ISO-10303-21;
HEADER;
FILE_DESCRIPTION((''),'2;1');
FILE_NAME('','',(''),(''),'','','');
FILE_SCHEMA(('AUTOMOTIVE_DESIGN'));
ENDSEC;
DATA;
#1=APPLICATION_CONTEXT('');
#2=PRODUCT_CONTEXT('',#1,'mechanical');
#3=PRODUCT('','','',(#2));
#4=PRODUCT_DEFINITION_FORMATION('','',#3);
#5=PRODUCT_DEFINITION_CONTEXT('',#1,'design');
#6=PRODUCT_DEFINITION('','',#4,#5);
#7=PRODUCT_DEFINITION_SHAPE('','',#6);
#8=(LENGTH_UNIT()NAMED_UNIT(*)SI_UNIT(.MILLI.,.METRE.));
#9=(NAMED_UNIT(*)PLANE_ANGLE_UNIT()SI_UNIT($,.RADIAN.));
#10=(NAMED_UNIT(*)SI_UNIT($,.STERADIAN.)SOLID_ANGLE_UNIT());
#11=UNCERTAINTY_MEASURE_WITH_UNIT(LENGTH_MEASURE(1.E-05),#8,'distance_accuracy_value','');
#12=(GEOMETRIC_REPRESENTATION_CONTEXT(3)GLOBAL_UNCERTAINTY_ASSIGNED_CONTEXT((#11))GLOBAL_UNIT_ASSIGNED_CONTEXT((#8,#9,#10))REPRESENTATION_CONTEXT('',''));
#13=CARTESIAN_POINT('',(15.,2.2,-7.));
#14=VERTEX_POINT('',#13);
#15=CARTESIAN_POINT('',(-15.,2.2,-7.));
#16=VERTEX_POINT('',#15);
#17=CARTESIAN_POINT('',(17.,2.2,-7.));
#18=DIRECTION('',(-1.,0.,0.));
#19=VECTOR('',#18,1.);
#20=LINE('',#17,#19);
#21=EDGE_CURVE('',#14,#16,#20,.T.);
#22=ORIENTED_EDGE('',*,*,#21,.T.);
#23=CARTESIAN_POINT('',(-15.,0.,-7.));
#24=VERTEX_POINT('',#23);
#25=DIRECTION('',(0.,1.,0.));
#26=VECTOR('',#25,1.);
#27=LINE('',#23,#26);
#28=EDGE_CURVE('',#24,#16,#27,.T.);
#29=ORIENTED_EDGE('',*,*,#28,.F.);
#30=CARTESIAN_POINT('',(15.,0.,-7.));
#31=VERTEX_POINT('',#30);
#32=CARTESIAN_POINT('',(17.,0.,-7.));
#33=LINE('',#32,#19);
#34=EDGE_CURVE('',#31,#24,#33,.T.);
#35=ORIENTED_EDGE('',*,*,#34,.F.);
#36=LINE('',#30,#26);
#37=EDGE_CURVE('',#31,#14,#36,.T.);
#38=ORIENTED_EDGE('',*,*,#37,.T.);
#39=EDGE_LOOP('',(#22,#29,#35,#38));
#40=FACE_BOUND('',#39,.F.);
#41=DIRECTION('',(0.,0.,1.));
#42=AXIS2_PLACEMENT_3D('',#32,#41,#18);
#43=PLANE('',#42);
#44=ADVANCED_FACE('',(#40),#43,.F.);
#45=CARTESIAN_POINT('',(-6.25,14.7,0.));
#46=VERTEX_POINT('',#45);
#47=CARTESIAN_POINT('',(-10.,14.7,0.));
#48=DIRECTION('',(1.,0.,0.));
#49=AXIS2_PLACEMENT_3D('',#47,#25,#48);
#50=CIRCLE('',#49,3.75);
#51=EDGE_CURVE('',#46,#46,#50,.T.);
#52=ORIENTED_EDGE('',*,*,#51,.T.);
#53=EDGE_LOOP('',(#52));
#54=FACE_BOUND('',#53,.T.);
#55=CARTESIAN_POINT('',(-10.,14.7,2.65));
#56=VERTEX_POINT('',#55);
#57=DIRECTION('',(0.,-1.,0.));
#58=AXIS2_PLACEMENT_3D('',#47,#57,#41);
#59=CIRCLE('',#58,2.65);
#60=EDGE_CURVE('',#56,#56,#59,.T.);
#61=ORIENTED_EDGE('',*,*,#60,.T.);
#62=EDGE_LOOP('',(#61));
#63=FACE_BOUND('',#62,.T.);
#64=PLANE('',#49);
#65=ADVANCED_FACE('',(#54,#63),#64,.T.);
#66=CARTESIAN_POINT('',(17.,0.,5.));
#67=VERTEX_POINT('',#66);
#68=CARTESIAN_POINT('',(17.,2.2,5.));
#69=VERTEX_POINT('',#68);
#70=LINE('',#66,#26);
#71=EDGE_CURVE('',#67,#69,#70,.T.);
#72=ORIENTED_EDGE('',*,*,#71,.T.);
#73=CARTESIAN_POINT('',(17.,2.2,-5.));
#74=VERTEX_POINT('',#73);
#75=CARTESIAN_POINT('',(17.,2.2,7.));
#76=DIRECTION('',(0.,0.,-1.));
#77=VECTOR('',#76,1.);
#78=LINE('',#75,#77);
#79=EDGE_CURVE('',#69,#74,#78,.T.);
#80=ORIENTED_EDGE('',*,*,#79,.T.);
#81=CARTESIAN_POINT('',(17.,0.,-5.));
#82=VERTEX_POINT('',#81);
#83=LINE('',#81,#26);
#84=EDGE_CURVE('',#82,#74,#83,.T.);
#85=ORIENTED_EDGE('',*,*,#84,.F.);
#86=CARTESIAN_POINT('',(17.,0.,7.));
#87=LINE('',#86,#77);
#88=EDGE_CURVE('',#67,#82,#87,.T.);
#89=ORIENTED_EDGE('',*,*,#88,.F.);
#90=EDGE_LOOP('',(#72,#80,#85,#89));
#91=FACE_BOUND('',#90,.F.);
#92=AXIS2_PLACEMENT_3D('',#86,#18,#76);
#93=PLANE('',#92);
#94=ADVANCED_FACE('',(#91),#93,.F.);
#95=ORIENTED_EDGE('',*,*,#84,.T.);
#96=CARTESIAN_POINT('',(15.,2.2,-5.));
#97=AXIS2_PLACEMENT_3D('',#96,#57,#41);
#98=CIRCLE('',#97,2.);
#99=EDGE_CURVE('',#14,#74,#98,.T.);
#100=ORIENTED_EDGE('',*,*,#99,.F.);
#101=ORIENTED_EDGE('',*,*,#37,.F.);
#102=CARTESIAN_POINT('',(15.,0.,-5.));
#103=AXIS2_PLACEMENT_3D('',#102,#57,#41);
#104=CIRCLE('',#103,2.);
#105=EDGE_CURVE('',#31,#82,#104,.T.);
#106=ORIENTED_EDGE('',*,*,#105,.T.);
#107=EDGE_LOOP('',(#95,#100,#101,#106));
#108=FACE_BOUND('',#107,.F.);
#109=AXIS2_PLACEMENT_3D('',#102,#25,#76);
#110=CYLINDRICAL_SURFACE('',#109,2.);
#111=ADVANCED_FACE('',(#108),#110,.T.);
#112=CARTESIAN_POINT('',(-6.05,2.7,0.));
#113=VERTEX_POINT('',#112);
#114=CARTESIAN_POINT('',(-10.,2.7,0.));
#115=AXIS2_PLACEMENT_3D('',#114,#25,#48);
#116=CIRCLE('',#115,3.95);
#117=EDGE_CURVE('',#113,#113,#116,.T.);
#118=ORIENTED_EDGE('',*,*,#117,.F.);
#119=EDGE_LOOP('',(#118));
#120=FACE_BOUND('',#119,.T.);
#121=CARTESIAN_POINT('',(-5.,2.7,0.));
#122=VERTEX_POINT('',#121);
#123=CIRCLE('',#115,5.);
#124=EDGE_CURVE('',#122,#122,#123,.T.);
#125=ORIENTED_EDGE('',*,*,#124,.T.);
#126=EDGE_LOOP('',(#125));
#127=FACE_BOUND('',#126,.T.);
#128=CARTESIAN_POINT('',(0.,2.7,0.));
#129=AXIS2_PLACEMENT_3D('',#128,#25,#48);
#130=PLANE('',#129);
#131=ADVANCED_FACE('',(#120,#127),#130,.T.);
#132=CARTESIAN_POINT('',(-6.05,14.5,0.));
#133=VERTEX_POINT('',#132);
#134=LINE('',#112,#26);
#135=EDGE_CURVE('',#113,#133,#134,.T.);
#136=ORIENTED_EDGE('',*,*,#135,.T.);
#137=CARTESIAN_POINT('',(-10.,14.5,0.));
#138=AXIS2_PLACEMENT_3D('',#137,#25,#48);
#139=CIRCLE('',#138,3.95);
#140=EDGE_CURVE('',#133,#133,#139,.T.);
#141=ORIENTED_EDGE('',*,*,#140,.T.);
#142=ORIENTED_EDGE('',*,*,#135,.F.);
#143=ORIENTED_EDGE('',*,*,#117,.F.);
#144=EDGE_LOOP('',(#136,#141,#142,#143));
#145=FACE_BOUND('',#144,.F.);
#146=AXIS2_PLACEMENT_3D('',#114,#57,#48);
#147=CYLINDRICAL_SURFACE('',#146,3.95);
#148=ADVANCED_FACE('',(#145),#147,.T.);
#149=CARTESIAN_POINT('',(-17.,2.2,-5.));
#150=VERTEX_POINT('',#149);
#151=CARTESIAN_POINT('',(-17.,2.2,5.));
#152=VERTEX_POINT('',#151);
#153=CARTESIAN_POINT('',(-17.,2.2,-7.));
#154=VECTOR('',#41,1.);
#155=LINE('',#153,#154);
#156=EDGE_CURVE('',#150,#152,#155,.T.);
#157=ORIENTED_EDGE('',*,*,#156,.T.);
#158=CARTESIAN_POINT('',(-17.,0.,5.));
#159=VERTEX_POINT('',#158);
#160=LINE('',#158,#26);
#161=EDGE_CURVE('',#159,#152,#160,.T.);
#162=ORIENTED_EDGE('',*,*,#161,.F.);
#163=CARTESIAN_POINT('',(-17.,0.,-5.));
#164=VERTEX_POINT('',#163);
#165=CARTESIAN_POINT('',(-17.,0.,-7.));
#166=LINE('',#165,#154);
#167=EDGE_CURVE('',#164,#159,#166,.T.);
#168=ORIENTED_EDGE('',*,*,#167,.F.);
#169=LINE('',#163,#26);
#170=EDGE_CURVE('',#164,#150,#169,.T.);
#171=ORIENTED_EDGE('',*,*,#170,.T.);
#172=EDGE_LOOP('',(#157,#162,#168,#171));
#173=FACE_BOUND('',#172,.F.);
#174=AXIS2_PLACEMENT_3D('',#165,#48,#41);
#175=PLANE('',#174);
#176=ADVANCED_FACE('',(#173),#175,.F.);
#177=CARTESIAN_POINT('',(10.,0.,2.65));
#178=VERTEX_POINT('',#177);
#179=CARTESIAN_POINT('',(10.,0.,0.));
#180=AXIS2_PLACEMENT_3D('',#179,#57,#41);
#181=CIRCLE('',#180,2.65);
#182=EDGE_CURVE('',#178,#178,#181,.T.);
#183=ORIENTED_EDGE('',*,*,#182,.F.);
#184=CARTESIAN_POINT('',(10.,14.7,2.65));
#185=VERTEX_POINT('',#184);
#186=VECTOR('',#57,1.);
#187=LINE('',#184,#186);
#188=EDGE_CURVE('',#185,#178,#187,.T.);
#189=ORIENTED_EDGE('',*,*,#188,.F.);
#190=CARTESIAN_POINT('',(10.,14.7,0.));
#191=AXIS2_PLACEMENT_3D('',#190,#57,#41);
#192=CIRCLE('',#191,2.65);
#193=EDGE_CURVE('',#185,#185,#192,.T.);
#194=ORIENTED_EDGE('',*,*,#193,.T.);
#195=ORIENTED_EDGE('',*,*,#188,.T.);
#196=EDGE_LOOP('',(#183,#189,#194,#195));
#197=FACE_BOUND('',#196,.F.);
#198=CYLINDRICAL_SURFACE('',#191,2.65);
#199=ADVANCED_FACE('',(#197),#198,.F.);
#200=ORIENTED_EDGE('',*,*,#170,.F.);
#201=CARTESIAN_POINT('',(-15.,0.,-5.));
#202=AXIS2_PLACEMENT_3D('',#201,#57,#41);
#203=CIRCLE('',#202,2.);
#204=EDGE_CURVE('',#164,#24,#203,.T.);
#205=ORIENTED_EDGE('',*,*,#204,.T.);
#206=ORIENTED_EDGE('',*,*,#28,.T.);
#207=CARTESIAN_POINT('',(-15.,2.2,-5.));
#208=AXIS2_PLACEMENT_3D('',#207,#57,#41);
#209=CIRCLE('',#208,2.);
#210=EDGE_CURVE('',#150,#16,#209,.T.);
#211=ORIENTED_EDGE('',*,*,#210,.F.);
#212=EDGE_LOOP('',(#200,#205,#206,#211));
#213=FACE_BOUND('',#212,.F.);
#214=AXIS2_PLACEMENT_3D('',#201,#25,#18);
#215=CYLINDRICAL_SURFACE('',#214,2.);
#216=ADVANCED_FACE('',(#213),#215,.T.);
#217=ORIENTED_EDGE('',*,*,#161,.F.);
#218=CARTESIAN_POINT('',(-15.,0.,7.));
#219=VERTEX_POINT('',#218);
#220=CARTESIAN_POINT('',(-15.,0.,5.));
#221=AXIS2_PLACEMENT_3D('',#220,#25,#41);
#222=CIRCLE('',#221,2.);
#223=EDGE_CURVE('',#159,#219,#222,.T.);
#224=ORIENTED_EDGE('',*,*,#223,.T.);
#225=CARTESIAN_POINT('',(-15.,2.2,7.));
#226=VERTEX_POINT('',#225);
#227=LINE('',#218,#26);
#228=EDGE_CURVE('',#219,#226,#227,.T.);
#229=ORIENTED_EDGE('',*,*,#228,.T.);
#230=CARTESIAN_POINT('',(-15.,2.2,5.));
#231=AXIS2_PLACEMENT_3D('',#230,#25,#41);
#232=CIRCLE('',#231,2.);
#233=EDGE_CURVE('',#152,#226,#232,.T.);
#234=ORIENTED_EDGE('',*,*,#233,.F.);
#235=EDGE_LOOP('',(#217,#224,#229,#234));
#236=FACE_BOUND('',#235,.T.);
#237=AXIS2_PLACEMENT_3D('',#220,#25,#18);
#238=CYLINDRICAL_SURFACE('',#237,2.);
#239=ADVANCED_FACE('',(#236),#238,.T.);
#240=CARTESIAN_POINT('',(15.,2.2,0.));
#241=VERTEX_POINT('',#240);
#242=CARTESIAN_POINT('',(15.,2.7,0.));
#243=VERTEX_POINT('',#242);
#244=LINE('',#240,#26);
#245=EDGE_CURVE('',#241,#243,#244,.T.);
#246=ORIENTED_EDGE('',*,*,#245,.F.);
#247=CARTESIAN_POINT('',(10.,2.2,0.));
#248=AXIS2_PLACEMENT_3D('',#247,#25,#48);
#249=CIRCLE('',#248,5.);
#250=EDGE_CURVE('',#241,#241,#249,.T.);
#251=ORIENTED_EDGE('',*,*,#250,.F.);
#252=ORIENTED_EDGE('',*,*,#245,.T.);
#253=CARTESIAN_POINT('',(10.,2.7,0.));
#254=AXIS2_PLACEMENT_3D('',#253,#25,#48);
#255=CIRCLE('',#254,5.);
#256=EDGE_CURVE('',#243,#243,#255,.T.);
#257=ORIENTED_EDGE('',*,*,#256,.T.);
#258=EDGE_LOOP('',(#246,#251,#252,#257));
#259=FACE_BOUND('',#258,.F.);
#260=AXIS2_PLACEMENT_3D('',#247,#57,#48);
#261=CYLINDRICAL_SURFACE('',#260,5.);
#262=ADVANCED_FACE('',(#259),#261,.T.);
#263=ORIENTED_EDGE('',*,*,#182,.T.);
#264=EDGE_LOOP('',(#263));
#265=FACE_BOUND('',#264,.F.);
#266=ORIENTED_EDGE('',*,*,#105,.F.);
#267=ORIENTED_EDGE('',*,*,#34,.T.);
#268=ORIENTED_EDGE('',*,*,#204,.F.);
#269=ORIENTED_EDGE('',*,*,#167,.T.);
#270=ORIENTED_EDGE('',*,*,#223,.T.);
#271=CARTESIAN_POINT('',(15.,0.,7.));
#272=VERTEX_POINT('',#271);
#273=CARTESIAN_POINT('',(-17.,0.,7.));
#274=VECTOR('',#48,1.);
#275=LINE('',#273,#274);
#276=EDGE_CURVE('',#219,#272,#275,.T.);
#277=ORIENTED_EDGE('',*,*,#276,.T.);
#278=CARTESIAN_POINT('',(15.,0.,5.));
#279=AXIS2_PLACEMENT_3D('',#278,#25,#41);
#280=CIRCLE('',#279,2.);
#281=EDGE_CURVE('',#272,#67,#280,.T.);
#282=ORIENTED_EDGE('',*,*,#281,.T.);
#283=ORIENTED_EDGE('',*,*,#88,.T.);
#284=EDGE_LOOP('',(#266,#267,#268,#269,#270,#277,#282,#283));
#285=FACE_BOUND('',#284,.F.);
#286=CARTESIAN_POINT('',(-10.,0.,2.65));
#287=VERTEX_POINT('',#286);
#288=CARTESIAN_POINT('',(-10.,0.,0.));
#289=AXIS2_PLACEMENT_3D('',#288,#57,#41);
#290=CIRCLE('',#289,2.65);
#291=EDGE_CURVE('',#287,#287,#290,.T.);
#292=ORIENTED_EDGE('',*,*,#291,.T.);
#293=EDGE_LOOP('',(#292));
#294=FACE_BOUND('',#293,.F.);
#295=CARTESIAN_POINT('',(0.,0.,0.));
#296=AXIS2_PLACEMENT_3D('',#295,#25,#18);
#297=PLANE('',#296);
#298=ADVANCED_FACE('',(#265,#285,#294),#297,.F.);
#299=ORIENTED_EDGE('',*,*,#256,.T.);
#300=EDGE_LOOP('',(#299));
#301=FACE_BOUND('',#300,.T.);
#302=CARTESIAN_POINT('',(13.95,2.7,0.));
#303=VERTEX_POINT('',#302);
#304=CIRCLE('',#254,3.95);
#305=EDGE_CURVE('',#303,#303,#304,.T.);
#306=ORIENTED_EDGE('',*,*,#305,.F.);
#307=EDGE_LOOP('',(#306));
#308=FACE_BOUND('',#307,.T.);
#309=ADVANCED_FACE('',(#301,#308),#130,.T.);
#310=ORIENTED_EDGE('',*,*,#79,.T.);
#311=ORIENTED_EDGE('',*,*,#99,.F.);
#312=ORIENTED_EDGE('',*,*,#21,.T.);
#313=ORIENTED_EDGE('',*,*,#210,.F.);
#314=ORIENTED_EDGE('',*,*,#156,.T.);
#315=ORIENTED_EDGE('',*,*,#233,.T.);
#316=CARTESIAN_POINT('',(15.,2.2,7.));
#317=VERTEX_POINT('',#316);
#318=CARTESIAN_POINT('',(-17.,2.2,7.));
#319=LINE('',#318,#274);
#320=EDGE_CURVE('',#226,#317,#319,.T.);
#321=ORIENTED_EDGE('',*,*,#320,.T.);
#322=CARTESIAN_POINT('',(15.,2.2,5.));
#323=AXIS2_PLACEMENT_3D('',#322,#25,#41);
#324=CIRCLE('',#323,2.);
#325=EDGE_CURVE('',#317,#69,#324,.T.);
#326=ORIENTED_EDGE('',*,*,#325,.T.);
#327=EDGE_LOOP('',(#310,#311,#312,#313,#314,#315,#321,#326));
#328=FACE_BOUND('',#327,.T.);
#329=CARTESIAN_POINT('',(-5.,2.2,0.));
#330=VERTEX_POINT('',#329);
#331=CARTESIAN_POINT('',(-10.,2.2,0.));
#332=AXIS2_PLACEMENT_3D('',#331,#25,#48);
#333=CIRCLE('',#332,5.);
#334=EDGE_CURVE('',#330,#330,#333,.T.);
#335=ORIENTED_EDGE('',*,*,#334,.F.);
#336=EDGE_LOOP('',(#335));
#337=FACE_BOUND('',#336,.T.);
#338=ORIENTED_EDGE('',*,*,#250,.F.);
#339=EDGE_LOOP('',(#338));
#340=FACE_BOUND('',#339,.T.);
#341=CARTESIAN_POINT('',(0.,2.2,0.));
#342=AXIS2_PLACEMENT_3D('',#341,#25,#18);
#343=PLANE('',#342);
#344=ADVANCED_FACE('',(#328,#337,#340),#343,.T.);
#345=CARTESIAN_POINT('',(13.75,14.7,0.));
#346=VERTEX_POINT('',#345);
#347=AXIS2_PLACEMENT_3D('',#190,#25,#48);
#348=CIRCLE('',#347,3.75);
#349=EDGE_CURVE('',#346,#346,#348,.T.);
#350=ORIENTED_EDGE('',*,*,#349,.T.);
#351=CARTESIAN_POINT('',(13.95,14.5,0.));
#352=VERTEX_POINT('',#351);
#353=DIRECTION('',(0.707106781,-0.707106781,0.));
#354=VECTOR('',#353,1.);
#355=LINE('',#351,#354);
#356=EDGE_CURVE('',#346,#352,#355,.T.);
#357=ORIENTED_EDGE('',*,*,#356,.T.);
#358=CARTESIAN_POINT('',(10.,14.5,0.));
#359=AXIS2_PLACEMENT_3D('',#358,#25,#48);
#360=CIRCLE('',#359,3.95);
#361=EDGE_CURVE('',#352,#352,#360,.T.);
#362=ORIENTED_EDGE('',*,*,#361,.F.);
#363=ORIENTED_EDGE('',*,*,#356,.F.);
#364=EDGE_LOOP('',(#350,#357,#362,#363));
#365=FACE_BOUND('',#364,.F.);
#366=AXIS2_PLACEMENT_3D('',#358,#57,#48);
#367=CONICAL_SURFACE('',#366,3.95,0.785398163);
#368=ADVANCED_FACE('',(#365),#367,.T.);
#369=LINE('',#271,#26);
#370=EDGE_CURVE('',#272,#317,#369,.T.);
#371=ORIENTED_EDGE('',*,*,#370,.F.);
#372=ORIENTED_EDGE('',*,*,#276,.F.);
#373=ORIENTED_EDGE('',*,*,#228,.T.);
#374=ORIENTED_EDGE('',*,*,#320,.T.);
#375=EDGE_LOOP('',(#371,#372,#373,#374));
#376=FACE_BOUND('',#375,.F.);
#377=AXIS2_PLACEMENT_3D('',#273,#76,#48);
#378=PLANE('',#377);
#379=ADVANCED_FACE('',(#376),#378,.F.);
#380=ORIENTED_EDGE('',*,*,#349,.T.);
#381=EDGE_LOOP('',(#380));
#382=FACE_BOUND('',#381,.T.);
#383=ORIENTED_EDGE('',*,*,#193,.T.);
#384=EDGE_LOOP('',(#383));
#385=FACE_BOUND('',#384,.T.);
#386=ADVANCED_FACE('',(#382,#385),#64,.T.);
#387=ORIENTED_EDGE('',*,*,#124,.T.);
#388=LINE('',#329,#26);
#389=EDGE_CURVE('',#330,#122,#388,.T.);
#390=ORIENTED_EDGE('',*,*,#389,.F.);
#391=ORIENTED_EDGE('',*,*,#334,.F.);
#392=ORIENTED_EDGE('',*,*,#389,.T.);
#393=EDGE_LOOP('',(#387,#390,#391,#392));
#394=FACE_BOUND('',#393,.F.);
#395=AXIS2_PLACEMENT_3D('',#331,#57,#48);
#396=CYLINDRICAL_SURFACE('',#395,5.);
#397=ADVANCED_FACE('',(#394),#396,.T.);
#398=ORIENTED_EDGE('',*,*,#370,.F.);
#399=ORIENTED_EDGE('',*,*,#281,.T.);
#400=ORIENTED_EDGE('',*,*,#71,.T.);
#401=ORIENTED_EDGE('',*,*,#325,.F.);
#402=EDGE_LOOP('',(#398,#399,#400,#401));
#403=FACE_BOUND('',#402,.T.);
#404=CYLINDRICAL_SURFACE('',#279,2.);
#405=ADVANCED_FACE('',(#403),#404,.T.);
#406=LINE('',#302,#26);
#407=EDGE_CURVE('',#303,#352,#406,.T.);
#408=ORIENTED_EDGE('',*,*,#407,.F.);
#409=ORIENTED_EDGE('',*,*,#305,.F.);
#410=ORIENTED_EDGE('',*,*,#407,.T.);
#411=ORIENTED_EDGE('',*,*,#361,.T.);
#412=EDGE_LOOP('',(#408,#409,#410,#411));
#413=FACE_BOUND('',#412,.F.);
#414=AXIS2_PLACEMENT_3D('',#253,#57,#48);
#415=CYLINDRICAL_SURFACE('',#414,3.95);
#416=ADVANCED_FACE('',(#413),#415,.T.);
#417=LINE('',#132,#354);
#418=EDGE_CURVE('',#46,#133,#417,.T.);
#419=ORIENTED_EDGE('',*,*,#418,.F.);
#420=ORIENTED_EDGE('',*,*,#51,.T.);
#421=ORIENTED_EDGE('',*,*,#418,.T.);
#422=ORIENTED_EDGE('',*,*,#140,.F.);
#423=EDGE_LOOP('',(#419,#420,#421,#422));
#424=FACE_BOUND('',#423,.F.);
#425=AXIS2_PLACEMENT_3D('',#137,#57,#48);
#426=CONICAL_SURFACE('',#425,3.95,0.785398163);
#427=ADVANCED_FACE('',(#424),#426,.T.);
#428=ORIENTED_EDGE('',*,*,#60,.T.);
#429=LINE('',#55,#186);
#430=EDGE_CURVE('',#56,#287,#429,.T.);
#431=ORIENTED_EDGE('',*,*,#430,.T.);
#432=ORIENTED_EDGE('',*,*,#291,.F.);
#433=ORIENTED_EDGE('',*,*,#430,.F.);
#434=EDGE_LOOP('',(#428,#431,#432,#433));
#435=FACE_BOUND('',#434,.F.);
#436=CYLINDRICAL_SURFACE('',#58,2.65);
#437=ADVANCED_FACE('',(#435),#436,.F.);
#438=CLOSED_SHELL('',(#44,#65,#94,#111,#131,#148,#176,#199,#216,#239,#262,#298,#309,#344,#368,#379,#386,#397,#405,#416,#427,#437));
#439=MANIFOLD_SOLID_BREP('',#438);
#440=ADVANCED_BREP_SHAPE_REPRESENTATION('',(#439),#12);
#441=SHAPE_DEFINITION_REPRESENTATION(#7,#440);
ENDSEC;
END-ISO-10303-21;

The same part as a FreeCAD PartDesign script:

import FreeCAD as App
import Part
import Sketcher
from FreeCAD import Vector
Q = App.Units.Quantity


def edges_at(feature, points):
    """Names of the edges that pass closest to the given points."""
    edges = feature.Shape.Edges
    near = lambda p: min(range(len(edges)), key=lambda i: edges[i].distToShape(Part.Vertex(*p))[0])
    return sorted({f"Edge{near(p) + 1}" for p in points})

doc = App.newDocument("Part")
params = doc.addObject("Spreadsheet::Sheet", "Params")
for row, (alias, value) in enumerate([
    ("sketch1_width", "34 mm"),
    ("sketch1_height", "14 mm"),
    ("pad1_length", "2.2 mm"),
    ("sketch2_diameter", "10 mm"),
    ("pad2_length", "0.5 mm"),
    ("sketch3_diameter", "7.9 mm"),
    ("pad3_length", "12 mm"),
    ("sketch4_diameter", "5.3 mm"),
    ("hole_diameter", "5.3 mm"),
    ("chamfer_size", "0.2 mm"),
    ("fillet_radius", "2 mm"),
], start=1):
    params.set(f"A{row}", alias)
    params.set(f"B{row}", "=" + value)
    params.setAlias(f"B{row}", alias)

body = doc.addObject("PartDesign::Body", "Body")

sketch1 = body.newObject("Sketcher::SketchObject", "Sketch")
sketch1.AttachmentSupport = (doc.getObject("XZ_Plane"), [""])
sketch1.MapMode = "FlatFace"
sketch1.addGeometry([
    Part.LineSegment(Vector(-17, -7, 0), Vector(-17, 7, 0)),
    Part.LineSegment(Vector(-17, 7, 0), Vector(17, 7, 0)),
    Part.LineSegment(Vector(17, 7, 0), Vector(17, -7, 0)),
    Part.LineSegment(Vector(17, -7, 0), Vector(-17, -7, 0)),
], False)
sketch1.addConstraint([
    Sketcher.Constraint("Coincident", 0, 2, 1, 1),
    Sketcher.Constraint("Coincident", 1, 2, 2, 1),
    Sketcher.Constraint("Coincident", 2, 2, 3, 1),
    Sketcher.Constraint("Coincident", 3, 2, 0, 1),
    Sketcher.Constraint("Vertical", 0),
    Sketcher.Constraint("Horizontal", 1),
    Sketcher.Constraint("Vertical", 2),
    Sketcher.Constraint("Horizontal", 3),
    Sketcher.Constraint("Symmetric", 0, 2, 2, 2, -1, 1),
    Sketcher.Constraint("DistanceX", 1, 1, 1, 2, Q("34 mm")),
    Sketcher.Constraint("DistanceY", 0, 1, 0, 2, Q("14 mm")),
])
sketch1.setExpression("Constraints[9]", "Params.sketch1_width")
sketch1.setExpression("Constraints[10]", "Params.sketch1_height")
pad1 = body.newObject("PartDesign::Pad", "Pad")
pad1.Profile = sketch1
pad1.setExpression("Length", "Params.pad1_length")
pad1.Reversed = True

sketch2 = body.newObject("Sketcher::SketchObject", "Sketch001")
sketch2.AttachmentSupport = (doc.getObject("XZ_Plane"), [""])
sketch2.MapMode = "FlatFace"
sketch2.AttachmentOffset = App.Placement(Vector(0, 0, -2.2), App.Rotation())
sketch2.addGeometry([
    Part.Circle(Vector(-10, 0, 0), Vector(0, 0, 1), 5),
    Part.Circle(Vector(10, 0, 0), Vector(0, 0, 1), 5),
], False)
sketch2.addConstraint([
    Sketcher.Constraint("Equal", 0, 1),
    Sketcher.Constraint("Symmetric", 0, 3, 1, 3, -1, 1),
    Sketcher.Constraint("PointOnObject", 0, 3, -1),
    Sketcher.Constraint("Diameter", 0, Q("10 mm")),
    Sketcher.Constraint("DistanceX", 0, 3, -1, 1, Q("10 mm")),
])
sketch2.setExpression("Constraints[3]", "Params.sketch2_diameter")
pad2 = body.newObject("PartDesign::Pad", "Pad001")
pad2.Profile = sketch2
pad2.setExpression("Length", "Params.pad2_length")
pad2.Reversed = True

sketch3 = body.newObject("Sketcher::SketchObject", "Sketch002")
sketch3.AttachmentSupport = (doc.getObject("XZ_Plane"), [""])
sketch3.MapMode = "FlatFace"
sketch3.AttachmentOffset = App.Placement(Vector(0, 0, -2.7), App.Rotation())
sketch3.addGeometry([
    Part.Circle(Vector(-10, 0, 0), Vector(0, 0, 1), 3.95),
    Part.Circle(Vector(10, 0, 0), Vector(0, 0, 1), 3.95),
], False)
sketch3.addConstraint([
    Sketcher.Constraint("Equal", 0, 1),
    Sketcher.Constraint("Symmetric", 0, 3, 1, 3, -1, 1),
    Sketcher.Constraint("PointOnObject", 0, 3, -1),
    Sketcher.Constraint("Diameter", 0, Q("7.9 mm")),
    Sketcher.Constraint("DistanceX", 0, 3, -1, 1, Q("10 mm")),
])
sketch3.setExpression("Constraints[3]", "Params.sketch3_diameter")
pad3 = body.newObject("PartDesign::Pad", "Pad002")
pad3.Profile = sketch3
pad3.setExpression("Length", "Params.pad3_length")
pad3.Reversed = True

sketch4 = body.newObject("Sketcher::SketchObject", "Sketch003")
sketch4.AttachmentSupport = (doc.getObject("XZ_Plane"), [""])
sketch4.MapMode = "FlatFace"
sketch4.AttachmentOffset = App.Placement(Vector(0, 0, -14.7), App.Rotation())
sketch4.addGeometry([
    Part.Circle(Vector(10, 0, 0), Vector(0, 0, 1), 2.65),
    Part.Circle(Vector(-10, 0, 0), Vector(0, 0, 1), 2.65),
], False)
sketch4.addConstraint([
    Sketcher.Constraint("Equal", 0, 1),
    Sketcher.Constraint("Symmetric", 0, 3, 1, 3, -1, 1),
    Sketcher.Constraint("PointOnObject", 0, 3, -1),
    Sketcher.Constraint("Diameter", 0, Q("5.3 mm")),
    Sketcher.Constraint("DistanceX", -1, 1, 0, 3, Q("10 mm")),
])
sketch4.setExpression("Constraints[3]", "Params.sketch4_diameter")
doc.recompute()
hole = body.newObject("PartDesign::Hole", "Hole")
hole.Profile = sketch4
hole.ThreadType = "None"
hole.setExpression("Diameter", "Params.hole_diameter")
hole.DepthType = "ThroughAll"
hole.Reversed = True
doc.recompute()

chamfer = body.newObject("PartDesign::Chamfer", "Chamfer")
chamfer.Base = (hole, edges_at(hole, [(-13.95, 14.7, 0), (6.05, 14.7, 0)]))
chamfer.setExpression("Size", "Params.chamfer_size")
doc.recompute()

fillet = body.newObject("PartDesign::Fillet", "Fillet")
fillet.Base = (chamfer, edges_at(chamfer, [
    (17, 1.1, 7),
    (17, 1.1, -7),
    (-17, 1.1, 7),
    (-17, 1.1, -7),
]))
fillet.setExpression("Radius", "Params.fillet_radius")

doc.recompute()
